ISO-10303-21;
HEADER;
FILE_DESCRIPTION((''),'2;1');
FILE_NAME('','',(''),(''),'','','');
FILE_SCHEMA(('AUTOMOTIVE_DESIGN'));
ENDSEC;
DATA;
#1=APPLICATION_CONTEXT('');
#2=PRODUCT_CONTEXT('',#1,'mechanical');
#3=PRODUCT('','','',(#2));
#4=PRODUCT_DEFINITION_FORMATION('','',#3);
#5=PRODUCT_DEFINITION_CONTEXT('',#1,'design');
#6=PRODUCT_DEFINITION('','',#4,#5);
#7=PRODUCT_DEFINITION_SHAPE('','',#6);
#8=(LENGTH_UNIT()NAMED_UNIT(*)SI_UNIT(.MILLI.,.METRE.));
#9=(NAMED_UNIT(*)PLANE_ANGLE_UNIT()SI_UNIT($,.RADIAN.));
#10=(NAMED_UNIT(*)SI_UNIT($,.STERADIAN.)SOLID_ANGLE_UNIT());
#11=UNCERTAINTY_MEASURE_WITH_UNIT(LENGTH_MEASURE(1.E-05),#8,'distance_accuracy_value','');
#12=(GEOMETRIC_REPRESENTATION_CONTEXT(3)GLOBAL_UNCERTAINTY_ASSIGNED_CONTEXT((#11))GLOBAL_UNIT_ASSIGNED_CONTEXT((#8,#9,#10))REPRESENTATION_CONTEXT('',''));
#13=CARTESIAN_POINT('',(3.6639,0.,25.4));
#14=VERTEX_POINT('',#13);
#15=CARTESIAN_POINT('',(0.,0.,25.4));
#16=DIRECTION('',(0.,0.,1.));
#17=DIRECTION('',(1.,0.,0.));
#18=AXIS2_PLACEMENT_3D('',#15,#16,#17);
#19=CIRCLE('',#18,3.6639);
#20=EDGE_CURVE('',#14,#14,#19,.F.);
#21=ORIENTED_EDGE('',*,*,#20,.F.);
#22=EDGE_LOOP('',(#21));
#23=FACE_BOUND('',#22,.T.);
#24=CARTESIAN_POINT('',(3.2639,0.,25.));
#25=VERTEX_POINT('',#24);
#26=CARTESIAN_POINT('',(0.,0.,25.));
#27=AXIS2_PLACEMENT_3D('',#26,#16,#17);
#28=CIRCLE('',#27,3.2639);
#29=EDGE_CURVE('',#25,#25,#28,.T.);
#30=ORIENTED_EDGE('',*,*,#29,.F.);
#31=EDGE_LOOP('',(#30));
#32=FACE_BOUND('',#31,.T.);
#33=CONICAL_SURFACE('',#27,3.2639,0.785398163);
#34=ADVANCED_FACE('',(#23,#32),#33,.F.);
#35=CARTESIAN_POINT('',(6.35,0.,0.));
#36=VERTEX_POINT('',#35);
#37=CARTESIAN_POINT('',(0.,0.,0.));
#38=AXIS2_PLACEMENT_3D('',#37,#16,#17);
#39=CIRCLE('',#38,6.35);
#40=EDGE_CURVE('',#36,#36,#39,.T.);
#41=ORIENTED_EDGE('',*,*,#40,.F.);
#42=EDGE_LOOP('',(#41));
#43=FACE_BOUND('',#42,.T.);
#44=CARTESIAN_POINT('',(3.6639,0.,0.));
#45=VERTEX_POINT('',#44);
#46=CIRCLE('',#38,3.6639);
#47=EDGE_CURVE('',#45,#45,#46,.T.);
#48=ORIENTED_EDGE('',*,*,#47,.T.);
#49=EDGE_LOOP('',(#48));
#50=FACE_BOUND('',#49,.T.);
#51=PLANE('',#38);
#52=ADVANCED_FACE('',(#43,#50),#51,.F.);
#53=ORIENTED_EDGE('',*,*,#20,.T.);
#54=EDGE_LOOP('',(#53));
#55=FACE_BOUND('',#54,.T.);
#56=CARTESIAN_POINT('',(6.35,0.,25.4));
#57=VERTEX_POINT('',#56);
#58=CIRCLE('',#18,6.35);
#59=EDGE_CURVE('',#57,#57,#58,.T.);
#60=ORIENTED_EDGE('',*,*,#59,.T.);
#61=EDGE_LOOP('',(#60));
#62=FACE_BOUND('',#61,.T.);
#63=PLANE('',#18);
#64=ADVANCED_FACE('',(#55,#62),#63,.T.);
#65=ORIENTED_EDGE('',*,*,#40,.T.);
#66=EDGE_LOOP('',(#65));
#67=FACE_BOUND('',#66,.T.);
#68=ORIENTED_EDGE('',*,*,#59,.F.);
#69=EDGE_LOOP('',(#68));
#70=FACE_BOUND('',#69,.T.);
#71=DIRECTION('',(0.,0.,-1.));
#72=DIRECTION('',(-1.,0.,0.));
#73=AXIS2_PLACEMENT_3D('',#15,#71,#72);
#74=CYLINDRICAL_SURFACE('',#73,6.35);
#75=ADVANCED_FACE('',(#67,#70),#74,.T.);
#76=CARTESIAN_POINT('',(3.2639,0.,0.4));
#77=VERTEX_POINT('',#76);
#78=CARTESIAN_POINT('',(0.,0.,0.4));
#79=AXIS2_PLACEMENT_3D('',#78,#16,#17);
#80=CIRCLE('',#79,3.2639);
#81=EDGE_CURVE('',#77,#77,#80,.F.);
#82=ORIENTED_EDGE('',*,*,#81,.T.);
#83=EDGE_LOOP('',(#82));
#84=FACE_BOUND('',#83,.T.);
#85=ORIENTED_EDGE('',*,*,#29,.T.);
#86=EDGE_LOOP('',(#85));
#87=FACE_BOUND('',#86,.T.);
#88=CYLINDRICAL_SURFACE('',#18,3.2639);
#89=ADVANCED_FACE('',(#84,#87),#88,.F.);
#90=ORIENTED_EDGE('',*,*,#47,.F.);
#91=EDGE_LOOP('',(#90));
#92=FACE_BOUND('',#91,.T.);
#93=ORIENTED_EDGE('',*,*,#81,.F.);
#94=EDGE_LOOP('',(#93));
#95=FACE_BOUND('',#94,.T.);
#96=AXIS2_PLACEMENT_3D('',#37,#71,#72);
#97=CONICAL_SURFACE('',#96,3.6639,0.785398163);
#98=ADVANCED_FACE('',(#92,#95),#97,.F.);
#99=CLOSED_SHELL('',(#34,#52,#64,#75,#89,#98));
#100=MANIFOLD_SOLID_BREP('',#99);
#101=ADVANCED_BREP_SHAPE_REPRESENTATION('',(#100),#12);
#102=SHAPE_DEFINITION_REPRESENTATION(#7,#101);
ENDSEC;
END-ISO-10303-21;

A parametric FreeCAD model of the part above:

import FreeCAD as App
import Part
import Sketcher
Q = App.Units.Quantity


def edges_at(feature, points):
    """Names of the edges that pass closest to the given points."""
    edges = feature.Shape.Edges
    near = lambda p: min(range(len(edges)), key=lambda i: edges[i].distToShape(Part.Vertex(*p))[0])
    return sorted({f"Edge{near(p) + 1}" for p in points})

doc = App.newDocument("Part")
body = doc.addObject("PartDesign::Body", "Body")

sketch1 = body.newObject("Sketcher::SketchObject", "Sketch")
sketch1.AttachmentSupport = (doc.getObject("XY_Plane"), [""])
sketch1.MapMode = "FlatFace"
sketch1.addGeometry(Part.Circle(App.Vector(0, 0, 0), App.Vector(0, 0, 1), 6), False)
sketch1.addConstraint([
    Sketcher.Constraint("Coincident", 0, 3, -1, 1),
    Sketcher.Constraint("Diameter", 0, Q("0.5 in")),
])
pad1 = body.newObject("PartDesign::Pad", "Pad")
pad1.Profile = sketch1
pad1.Length = Q("1 in")

sketch2 = body.newObject("Sketcher::SketchObject", "Sketch001")
sketch2.AttachmentSupport = (doc.getObject("XY_Plane"), [""])
sketch2.MapMode = "FlatFace"
sketch2.AttachmentOffset = App.Placement(App.Vector(0, 0, 1 * 25.4), App.Rotation())
sketch2.addGeometry(Part.Circle(App.Vector(0, 0, 0), App.Vector(0, 0, 1), 3.3), False)
sketch2.addConstraint([
    Sketcher.Constraint("Coincident", 0, 3, -1, 1),
    Sketcher.Constraint("Diameter", 0, Q("0.257 in")),
])
doc.recompute()
hole = body.newObject("PartDesign::Hole", "Hole")
hole.Profile = sketch2
hole.ThreadType = "None"
hole.Diameter = Q("0.257 in")
hole.DepthType = "ThroughAll"
doc.recompute()

chamfer = body.newObject("PartDesign::Chamfer", "Chamfer")
chamfer.Base = (hole, edges_at(hole, [(3.264, 0, 25.4), (3.264, 0, 0)]))
chamfer.Size = 0.4

doc.recompute()
